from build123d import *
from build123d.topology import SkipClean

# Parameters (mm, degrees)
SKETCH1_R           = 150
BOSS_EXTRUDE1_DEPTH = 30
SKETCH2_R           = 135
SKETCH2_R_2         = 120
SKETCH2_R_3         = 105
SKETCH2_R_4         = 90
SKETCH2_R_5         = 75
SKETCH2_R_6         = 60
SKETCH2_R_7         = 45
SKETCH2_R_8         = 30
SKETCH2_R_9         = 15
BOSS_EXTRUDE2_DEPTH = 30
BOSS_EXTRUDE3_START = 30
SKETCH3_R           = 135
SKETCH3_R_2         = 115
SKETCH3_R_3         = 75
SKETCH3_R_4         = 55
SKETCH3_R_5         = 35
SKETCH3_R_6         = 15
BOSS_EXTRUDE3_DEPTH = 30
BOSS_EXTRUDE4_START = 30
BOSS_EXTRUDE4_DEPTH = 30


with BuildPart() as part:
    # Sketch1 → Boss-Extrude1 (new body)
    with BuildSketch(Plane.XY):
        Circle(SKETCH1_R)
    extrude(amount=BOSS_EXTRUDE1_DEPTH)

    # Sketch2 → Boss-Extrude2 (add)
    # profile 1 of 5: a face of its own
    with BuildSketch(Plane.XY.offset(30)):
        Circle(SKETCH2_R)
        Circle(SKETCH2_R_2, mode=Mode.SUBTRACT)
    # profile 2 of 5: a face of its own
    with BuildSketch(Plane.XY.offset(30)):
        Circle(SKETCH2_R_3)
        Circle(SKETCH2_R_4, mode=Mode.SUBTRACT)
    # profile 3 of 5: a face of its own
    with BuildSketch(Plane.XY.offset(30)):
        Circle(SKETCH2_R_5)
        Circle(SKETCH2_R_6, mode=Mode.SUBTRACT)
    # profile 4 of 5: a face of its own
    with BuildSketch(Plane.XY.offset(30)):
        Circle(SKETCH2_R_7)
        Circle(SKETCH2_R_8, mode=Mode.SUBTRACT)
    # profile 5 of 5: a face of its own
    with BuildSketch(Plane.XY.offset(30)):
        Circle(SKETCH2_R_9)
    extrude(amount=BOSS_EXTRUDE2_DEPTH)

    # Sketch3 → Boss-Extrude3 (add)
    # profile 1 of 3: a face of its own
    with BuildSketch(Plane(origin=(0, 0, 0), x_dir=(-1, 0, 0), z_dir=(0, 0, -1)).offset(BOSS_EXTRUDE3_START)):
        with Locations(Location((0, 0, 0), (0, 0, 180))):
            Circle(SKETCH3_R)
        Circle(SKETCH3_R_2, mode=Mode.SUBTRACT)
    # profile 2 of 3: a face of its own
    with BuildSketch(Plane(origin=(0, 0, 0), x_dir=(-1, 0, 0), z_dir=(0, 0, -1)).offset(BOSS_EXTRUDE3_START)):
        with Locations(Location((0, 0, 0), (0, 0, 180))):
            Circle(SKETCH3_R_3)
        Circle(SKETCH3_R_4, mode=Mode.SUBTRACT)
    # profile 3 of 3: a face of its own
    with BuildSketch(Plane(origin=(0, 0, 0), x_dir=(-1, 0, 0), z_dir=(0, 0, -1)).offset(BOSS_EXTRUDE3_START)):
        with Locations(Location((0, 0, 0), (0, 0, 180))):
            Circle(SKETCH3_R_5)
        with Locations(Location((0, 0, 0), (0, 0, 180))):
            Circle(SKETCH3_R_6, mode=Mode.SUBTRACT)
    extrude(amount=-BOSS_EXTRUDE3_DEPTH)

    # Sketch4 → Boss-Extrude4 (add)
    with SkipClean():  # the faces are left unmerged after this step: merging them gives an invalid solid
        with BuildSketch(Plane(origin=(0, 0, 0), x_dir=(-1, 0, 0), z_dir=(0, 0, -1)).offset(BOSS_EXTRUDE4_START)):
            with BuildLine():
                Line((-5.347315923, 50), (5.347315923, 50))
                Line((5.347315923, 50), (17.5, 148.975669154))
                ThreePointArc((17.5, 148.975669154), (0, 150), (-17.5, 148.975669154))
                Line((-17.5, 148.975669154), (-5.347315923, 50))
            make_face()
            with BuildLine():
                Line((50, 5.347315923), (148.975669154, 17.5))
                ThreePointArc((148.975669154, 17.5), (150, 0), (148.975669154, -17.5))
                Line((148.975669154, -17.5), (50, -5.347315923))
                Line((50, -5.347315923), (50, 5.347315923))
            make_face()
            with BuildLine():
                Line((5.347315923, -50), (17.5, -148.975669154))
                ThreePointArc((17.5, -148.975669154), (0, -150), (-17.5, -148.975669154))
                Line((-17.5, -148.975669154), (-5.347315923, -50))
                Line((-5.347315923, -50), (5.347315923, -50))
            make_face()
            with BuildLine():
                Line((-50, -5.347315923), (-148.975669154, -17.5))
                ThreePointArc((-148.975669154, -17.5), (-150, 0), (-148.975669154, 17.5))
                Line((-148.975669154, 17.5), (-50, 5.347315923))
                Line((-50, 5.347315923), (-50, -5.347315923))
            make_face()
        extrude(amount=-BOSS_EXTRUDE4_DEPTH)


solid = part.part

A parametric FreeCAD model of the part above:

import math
import FreeCAD as App
import Part
import Sketcher
from FreeCAD import Vector
Q = App.Units.Quantity

doc = App.newDocument("Part")
body = doc.addObject("PartDesign::Body", "Body")

# Sketch on XY plane
sketch1 = doc.addObject("Sketcher::SketchObject", "Sketch")
body.addObject(sketch1)
sketch1.AttachmentSupport = (doc.XY_Plane, [""])
sketch1.MapMode = "FlatFace"
sketch1.addGeometry(Part.Circle(Vector(0, 0, 0), Vector(0, 0, 1), 150), False)
sketch1.addConstraint([
    Sketcher.Constraint("Coincident", 0, 3, -1, 1),
    Sketcher.Constraint("Diameter", 0, Q("300 mm")),
])
pad1 = doc.addObject("PartDesign::Pad", "Pad")
body.addObject(pad1)
pad1.Profile = sketch1
pad1.Length = 30

# Sketch on XY plane
sketch2 = doc.addObject("Sketcher::SketchObject", "Sketch001")
body.addObject(sketch2)
sketch2.AttachmentSupport = (doc.XY_Plane, [""])
sketch2.MapMode = "FlatFace"
sketch2.AttachmentOffset = App.Placement(Vector(0, 0, 30), App.Rotation())
sketch2.addGeometry([
    Part.Circle(Vector(0, 0, 0), Vector(0, 0, 1), 135),  # 0
    Part.Circle(Vector(0, 0, 0), Vector(0, 0, 1), 120),  # 1
    Part.Circle(Vector(0, 0, 0), Vector(0, 0, 1), 105),  # 2
    Part.Circle(Vector(0, 0, 0), Vector(0, 0, 1), 90),  # 3
    Part.Circle(Vector(0, 0, 0), Vector(0, 0, 1), 75),  # 4
    Part.Circle(Vector(0, 0, 0), Vector(0, 0, 1), 60),  # 5
    Part.Circle(Vector(0, 0, 0), Vector(0, 0, 1), 45),  # 6
    Part.Circle(Vector(0, 0, 0), Vector(0, 0, 1), 30),  # 7
    Part.Circle(Vector(0, 0, 0), Vector(0, 0, 1), 15),  # 8
], False)
sketch2.addConstraint([
    Sketcher.Constraint("Coincident", 0, 3, -1, 1),
    Sketcher.Constraint("Coincident", 1, 3, -1, 1),
    Sketcher.Constraint("Coincident", 2, 3, -1, 1),
    Sketcher.Constraint("Coincident", 3, 3, -1, 1),
    Sketcher.Constraint("Coincident", 4, 3, -1, 1),
    Sketcher.Constraint("Coincident", 5, 3, -1, 1),
    Sketcher.Constraint("Coincident", 6, 3, -1, 1),
    Sketcher.Constraint("Coincident", 7, 3, -1, 1),
    Sketcher.Constraint("Coincident", 8, 3, -1, 1),
    Sketcher.Constraint("Diameter", 0, Q("270 mm")),
    Sketcher.Constraint("Diameter", 1, Q("240 mm")),
    Sketcher.Constraint("Diameter", 2, Q("210 mm")),
    Sketcher.Constraint("Diameter", 3, Q("180 mm")),
    Sketcher.Constraint("Diameter", 4, Q("150 mm")),
    Sketcher.Constraint("Diameter", 5, Q("120 mm")),
    Sketcher.Constraint("Diameter", 6, Q("90 mm")),
    Sketcher.Constraint("Diameter", 7, Q("60 mm")),
    Sketcher.Constraint("Diameter", 8, Q("30 mm")),
])
pad2 = doc.addObject("PartDesign::Pad", "Pad001")
body.addObject(pad2)
pad2.Profile = sketch2
pad2.Length = 30

# Sketch on XY plane
sketch3 = doc.addObject("Sketcher::SketchObject", "Sketch002")
body.addObject(sketch3)
sketch3.AttachmentSupport = (doc.XY_Plane, [""])
sketch3.MapMode = "FlatFace"
sketch3.AttachmentOffset = App.Placement(Vector(0, 0, -30), App.Rotation())
sketch3.addGeometry([
    Part.Circle(Vector(0, 0, 0), Vector(0, 0, 1), 135),  # 0
    Part.Circle(Vector(0, 0, 0), Vector(0, 0, 1), 115),  # 1
    Part.Circle(Vector(0, 0, 0), Vector(0, 0, 1), 75),  # 2
    Part.Circle(Vector(0, 0, 0), Vector(0, 0, 1), 55),  # 3
    Part.Circle(Vector(0, 0, 0), Vector(0, 0, 1), 35),  # 4
    Part.Circle(Vector(0, 0, 0), Vector(0, 0, 1), 15),  # 5
], False)
sketch3.addConstraint([
    Sketcher.Constraint("Coincident", 0, 3, -1, 1),
    Sketcher.Constraint("Coincident", 1, 3, -1, 1),
    Sketcher.Constraint("Coincident", 2, 3, -1, 1),
    Sketcher.Constraint("Coincident", 3, 3, -1, 1),
    Sketcher.Constraint("Coincident", 4, 3, -1, 1),
    Sketcher.Constraint("Coincident", 5, 3, -1, 1),
    Sketcher.Constraint("Diameter", 0, Q("270 mm")),
    Sketcher.Constraint("Diameter", 1, Q("230 mm")),
    Sketcher.Constraint("Diameter", 2, Q("150 mm")),
    Sketcher.Constraint("Diameter", 3, Q("110 mm")),
    Sketcher.Constraint("Diameter", 4, Q("70 mm")),
    Sketcher.Constraint("Diameter", 5, Q("30 mm")),
])
pad3 = doc.addObject("PartDesign::Pad", "Pad002")
body.addObject(pad3)
pad3.Profile = sketch3
pad3.Length = 30

# Sketch on XY plane
sketch4 = doc.addObject("Sketcher::SketchObject", "Sketch003")
body.addObject(sketch4)
sketch4.AttachmentSupport = (doc.XY_Plane, [""])
sketch4.MapMode = "FlatFace"
sketch4.AttachmentOffset = App.Placement(Vector(0, 0, -30), App.Rotation())
sketch4.addGeometry([
    Part.LineSegment(Vector(5, 50, 0), Vector(-5, 50, 0)),  # 0
    Part.LineSegment(Vector(-5, 50, 0), Vector(-18, 149, 0)),  # 1
    Part.ArcOfCircle(Part.Circle(Vector(0, 0, 0), Vector(0, 0, 1), 150), math.radians(83.3), math.radians(96.7)),  # 2
    Part.LineSegment(Vector(18, 149, 0), Vector(5, 50, 0)),  # 3
    Part.LineSegment(Vector(-149, 18, 0), Vector(-50, 5, 0)),  # 4
    Part.LineSegment(Vector(-50, 5, 0), Vector(-50, -5, 0)),  # 5
    Part.LineSegment(Vector(-50, -5, 0), Vector(-149, -18, 0)),  # 6
    Part.ArcOfCircle(Part.Circle(Vector(0, 0, 0), Vector(0, 0, 1), 150), math.radians(173.3), math.radians(186.7)),  # 7
    Part.LineSegment(Vector(-18, -149, 0), Vector(-5, -50, 0)),  # 8
    Part.LineSegment(Vector(-5, -50, 0), Vector(5, -50, 0)),  # 9
    Part.LineSegment(Vector(5, -50, 0), Vector(18, -149, 0)),  # 10
    Part.ArcOfCircle(Part.Circle(Vector(0, 0, 0), Vector(0, 0, 1), 150), math.radians(-96.7), math.radians(-83.3)),  # 11
    Part.LineSegment(Vector(149, -18, 0), Vector(50, -5, 0)),  # 12
    Part.LineSegment(Vector(50, -5, 0), Vector(50, 5, 0)),  # 13
    Part.LineSegment(Vector(50, 5, 0), Vector(149, 18, 0)),  # 14
    Part.ArcOfCircle(Part.Circle(Vector(0, 0, 0), Vector(0, 0, 1), 150), math.radians(-6.7), math.radians(6.7)),  # 15
], False)
sketch4.addConstraint([
    Sketcher.Constraint("Coincident", 0, 2, 1, 1),
    Sketcher.Constraint("Coincident", 1, 2, 2, 2),
    Sketcher.Constraint("Coincident", 2, 1, 3, 1),
    Sketcher.Constraint("Coincident", 3, 2, 0, 1),
    Sketcher.Constraint("Coincident", 4, 2, 5, 1),
    Sketcher.Constraint("Coincident", 5, 2, 6, 1),
    Sketcher.Constraint("Coincident", 6, 2, 7, 2),
    Sketcher.Constraint("Coincident", 7, 1, 4, 1),
    Sketcher.Constraint("Coincident", 8, 2, 9, 1),
    Sketcher.Constraint("Coincident", 9, 2, 10, 1),
    Sketcher.Constraint("Coincident", 10, 2, 11, 2),
    Sketcher.Constraint("Coincident", 11, 1, 8, 1),
    Sketcher.Constraint("Coincident", 12, 2, 13, 1),
    Sketcher.Constraint("Coincident", 13, 2, 14, 1),
    Sketcher.Constraint("Coincident", 14, 2, 15, 2),
    Sketcher.Constraint("Coincident", 15, 1, 12, 1),
    Sketcher.Constraint("Horizontal", 0),
    Sketcher.Constraint("Vertical", 5),
    Sketcher.Constraint("Horizontal", 9),
    Sketcher.Constraint("Vertical", 13),
    Sketcher.Constraint("Coincident", 2, 3, -1, 1),
    Sketcher.Constraint("Coincident", 7, 3, -1, 1),
    Sketcher.Constraint("Coincident", 11, 3, -1, 1),
    Sketcher.Constraint("Coincident", 15, 3, -1, 1),
    Sketcher.Constraint("Equal", 2, 7),
    Sketcher.Constraint("Equal", 7, 11),
    Sketcher.Constraint("Equal", 11, 15),
    Sketcher.Constraint("Symmetric", 3, 2, 8, 2, -1, 1),
    Sketcher.Constraint("Symmetric", 4, 2, 12, 2, -1, 1),
    Sketcher.Constraint("Perpendicular", 3, 4),
    Sketcher.Constraint("Perpendicular", 1, 6),
    Sketcher.Constraint("Perpendicular", 4, 8),
    Sketcher.Constraint("Perpendicular", 6, 10),
    Sketcher.Constraint("Perpendicular", 8, 12),
    Sketcher.Constraint("Perpendicular", 10, 14),
    Sketcher.Constraint("Horizontal", 1, 2, 2, 1),
    Sketcher.Constraint("Horizontal", 10, 2, 11, 1),
    Sketcher.Constraint("Horizontal", 5, 2, 12, 2),
    Sketcher.Constraint("Horizontal", 4, 2, 13, 2),
    Sketcher.Constraint("Horizontal", 7, 1, 14, 2),
    Sketcher.Constraint("Equal", 9, 5),
    Sketcher.Constraint("Equal", 3, 4),
    Sketcher.Constraint("Radius", 2, Q("150 mm")),
    Sketcher.Constraint("Angle", 1, Q("97 deg")),
    Sketcher.Constraint("DistanceY", -1, 1, 0, 2, Q("50 mm")),
    Sketcher.Constraint("DistanceX", 1, 2, 2, 1, Q("35 mm")),
])
pad4 = doc.addObject("PartDesign::Pad", "Pad003")
body.addObject(pad4)
pad4.Profile = sketch4
pad4.Length = 30

doc.recompute()
